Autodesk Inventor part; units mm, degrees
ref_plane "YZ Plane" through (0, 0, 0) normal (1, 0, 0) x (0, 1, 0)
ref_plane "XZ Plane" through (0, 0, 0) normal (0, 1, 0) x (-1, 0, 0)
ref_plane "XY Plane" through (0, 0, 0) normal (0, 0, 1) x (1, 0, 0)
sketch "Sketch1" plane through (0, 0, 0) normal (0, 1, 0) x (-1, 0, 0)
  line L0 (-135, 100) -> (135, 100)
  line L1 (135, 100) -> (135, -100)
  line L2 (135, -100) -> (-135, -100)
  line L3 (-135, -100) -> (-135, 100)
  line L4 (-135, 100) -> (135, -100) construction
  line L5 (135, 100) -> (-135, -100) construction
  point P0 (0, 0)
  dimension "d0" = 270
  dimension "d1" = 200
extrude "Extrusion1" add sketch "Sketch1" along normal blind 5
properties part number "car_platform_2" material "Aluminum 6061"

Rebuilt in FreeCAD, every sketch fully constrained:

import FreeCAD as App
import Part
import Sketcher
from FreeCAD import Vector


def add_polygon(sketch, points):
    """Adds a closed chain of lines whose ends are joined by coincident constraints."""
    first, n = sketch.GeometryCount, len(points)
    for a, b in zip(points, points[1:] + points[:1]):
        sketch.addGeometry(Part.LineSegment(App.Vector(*a, 0), App.Vector(*b, 0)), False)
    for i in range(n):
        sketch.addConstraint(Sketcher.Constraint("Coincident", first + i, 2, first + (i + 1) % n, 1))

doc = App.newDocument("Part")
body = doc.addObject("PartDesign::Body", "Body")

sketch1 = body.newObject("Sketcher::SketchObject", "Sketch")
sketch1.AttachmentSupport = (doc.getObject("XZ_Plane"), [""])
sketch1.MapMode = "FlatFace"
add_polygon(sketch1, [(-135, 100), (135, 100), (135, -100), (-135, -100)])
sketch1.addConstraint([
    Sketcher.Constraint("Horizontal", 0),
    Sketcher.Constraint("Vertical", 1),
    Sketcher.Constraint("Horizontal", 2),
    Sketcher.Constraint("Vertical", 3),
    Sketcher.Constraint("Symmetric", 0, 2, 2, 2, -1, 1),
    Sketcher.Constraint("DistanceX", 0, 1, 0, 2, 270.0),
    Sketcher.Constraint("DistanceY", 1, 2, 1, 1, 200.0),
])
pad1 = body.newObject("PartDesign::Pad", "Pad")
pad1.Profile = sketch1
pad1.Length = 5
pad1.Reversed = True

doc.recompute()
